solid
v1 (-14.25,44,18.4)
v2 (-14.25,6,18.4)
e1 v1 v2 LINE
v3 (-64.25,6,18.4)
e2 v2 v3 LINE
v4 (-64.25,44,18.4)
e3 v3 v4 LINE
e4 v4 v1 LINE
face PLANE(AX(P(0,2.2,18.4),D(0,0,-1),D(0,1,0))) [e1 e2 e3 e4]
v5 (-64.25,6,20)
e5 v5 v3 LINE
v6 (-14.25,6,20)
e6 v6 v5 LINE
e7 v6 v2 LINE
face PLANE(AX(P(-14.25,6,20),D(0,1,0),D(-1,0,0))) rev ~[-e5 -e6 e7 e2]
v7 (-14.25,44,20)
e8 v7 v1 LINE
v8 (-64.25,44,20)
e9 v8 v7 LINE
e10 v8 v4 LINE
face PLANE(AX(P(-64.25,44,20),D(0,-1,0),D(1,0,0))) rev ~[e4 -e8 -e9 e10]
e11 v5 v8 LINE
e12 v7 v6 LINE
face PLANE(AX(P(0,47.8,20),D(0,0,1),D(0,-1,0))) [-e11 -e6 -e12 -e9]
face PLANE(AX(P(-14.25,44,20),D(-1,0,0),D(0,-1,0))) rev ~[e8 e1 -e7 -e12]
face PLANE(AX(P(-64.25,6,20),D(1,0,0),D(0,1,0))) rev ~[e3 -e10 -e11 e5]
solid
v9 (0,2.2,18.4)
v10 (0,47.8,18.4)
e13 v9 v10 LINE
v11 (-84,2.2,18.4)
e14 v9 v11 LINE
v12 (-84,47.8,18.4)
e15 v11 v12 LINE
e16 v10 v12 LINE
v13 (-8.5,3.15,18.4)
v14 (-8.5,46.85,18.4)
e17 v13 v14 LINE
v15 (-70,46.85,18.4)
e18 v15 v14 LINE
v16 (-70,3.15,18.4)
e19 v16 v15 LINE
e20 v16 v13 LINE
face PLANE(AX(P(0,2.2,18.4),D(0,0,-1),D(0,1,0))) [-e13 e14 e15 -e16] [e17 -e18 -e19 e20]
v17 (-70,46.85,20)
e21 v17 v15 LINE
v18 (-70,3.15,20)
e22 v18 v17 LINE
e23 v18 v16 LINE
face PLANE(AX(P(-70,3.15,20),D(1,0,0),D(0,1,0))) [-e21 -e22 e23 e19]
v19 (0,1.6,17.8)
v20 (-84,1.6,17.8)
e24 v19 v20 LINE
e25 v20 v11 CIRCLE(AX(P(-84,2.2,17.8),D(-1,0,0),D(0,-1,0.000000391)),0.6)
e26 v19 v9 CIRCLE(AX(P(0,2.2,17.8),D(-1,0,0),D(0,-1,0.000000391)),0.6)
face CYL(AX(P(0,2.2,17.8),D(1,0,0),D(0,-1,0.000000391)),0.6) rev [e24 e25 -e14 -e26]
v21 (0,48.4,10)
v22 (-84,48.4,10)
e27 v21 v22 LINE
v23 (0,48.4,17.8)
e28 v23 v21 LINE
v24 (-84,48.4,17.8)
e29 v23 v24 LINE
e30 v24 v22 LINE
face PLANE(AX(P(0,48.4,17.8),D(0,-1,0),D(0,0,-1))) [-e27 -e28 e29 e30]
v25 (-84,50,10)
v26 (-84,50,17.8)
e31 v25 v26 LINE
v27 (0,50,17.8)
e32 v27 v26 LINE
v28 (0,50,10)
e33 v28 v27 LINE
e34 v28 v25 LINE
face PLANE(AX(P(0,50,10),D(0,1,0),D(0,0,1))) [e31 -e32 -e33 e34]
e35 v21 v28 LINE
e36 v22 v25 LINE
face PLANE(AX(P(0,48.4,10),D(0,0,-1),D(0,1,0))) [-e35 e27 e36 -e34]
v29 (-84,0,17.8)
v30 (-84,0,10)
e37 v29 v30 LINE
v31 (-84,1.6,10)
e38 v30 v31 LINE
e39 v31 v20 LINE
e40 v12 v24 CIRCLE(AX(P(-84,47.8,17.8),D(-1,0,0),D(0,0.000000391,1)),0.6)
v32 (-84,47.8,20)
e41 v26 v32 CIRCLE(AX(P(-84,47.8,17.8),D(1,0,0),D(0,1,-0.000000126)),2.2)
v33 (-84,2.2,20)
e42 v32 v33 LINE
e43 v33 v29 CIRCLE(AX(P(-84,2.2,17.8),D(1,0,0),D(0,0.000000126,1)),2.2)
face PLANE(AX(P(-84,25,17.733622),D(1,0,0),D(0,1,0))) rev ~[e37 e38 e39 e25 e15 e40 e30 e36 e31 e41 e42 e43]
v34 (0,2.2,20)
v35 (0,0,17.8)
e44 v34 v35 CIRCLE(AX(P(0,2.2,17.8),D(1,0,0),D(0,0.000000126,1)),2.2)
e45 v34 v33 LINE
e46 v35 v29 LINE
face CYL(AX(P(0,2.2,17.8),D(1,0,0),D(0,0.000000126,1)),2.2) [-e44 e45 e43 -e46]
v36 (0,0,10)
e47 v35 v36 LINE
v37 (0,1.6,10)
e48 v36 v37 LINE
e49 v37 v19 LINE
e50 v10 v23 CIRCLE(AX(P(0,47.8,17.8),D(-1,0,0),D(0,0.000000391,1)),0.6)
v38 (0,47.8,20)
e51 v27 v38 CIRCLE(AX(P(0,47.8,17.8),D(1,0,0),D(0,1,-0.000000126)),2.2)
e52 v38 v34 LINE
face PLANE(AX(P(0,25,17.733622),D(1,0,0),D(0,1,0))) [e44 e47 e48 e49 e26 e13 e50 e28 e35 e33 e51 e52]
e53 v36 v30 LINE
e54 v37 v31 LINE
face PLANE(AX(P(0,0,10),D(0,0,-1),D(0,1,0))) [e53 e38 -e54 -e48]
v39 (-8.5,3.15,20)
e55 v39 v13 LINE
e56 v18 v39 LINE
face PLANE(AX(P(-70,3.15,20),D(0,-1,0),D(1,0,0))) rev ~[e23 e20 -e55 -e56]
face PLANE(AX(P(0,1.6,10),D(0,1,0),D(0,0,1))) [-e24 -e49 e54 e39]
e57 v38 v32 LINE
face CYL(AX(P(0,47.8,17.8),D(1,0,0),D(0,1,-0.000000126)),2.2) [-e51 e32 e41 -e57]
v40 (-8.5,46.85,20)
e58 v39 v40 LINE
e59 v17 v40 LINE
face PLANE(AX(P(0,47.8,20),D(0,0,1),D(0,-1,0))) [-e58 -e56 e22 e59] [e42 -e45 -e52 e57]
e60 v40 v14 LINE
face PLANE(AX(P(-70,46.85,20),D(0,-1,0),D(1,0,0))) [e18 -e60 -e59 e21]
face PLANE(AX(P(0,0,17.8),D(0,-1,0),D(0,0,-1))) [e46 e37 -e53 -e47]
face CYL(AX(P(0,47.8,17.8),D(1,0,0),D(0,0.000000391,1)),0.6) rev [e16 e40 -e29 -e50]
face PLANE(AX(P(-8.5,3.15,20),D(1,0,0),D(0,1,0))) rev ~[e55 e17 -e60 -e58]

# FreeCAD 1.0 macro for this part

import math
import FreeCAD as App
import Part
import Sketcher

V = App.Vector
Q = App.Units.Quantity


def add_polygon(sketch, points):
    """Adds a closed chain of lines whose ends are joined by coincident constraints."""
    first, n = sketch.GeometryCount, len(points)
    for a, b in zip(points, points[1:] + points[:1]):
        sketch.addGeometry(Part.LineSegment(App.Vector(*a, 0), App.Vector(*b, 0)), False)
    for i in range(n):
        sketch.addConstraint(Sketcher.Constraint("Coincident", first + i, 2, first + (i + 1) % n, 1))

doc = App.newDocument("Part")
body = doc.addObject("PartDesign::Body", "Body")
body.AllowCompound = True

# Sketch on YZ plane
sketch1 = doc.addObject("Sketcher::SketchObject", "Sketch")
body.addObject(sketch1)
sketch1.AttachmentSupport = (doc.YZ_Plane, [""])
sketch1.MapMode = "FlatFace"
sketch1.addGeometry([
    Part.LineSegment(V(47.8, 20, 0), V(2.2, 20, 0)),  # 0
    Part.ArcOfCircle(Part.Circle(V(2.2, 17.8, 0), V(0, 0, 1), 2.2), math.radians(90), math.radians(180)),  # 1
    Part.LineSegment(V(0, 17.8, 0), V(0, 10, 0)),  # 2
    Part.LineSegment(V(0, 10, 0), V(1.6, 10, 0)),  # 3
    Part.LineSegment(V(1.6, 10, 0), V(1.6, 17.8, 0)),  # 4
    Part.ArcOfCircle(Part.Circle(V(2.2, 17.8, 0), V(0, 0, 1), 0.6), math.radians(90), math.radians(180)),  # 5
    Part.LineSegment(V(2.2, 18.4, 0), V(47.8, 18.4, 0)),  # 6
    Part.ArcOfCircle(Part.Circle(V(47.8, 17.8, 0), V(0, 0, 1), 0.6), math.radians(0), math.radians(90)),  # 7
    Part.LineSegment(V(48.4, 17.8, 0), V(48.4, 10, 0)),  # 8
    Part.LineSegment(V(48.4, 10, 0), V(50, 10, 0)),  # 9
    Part.LineSegment(V(50, 10, 0), V(50, 17.8, 0)),  # 10
    Part.ArcOfCircle(Part.Circle(V(47.8, 17.8, 0), V(0, 0, 1), 2.2), math.radians(0), math.radians(90)),  # 11
], False)
sketch1.addConstraint([
    Sketcher.Constraint("Tangent", 0, 2, 1, 1),
    Sketcher.Constraint("Tangent", 1, 2, 2, 1),
    Sketcher.Constraint("Coincident", 2, 2, 3, 1),
    Sketcher.Constraint("Coincident", 3, 2, 4, 1),
    Sketcher.Constraint("Tangent", 4, 2, 5, 2),
    Sketcher.Constraint("Tangent", 5, 1, 6, 1),
    Sketcher.Constraint("Tangent", 6, 2, 7, 2),
    Sketcher.Constraint("Tangent", 7, 1, 8, 1),
    Sketcher.Constraint("Coincident", 8, 2, 9, 1),
    Sketcher.Constraint("Coincident", 9, 2, 10, 1),
    Sketcher.Constraint("Tangent", 10, 2, 11, 1),
    Sketcher.Constraint("Tangent", 11, 2, 0, 1),
    Sketcher.Constraint("Horizontal", 0),
    Sketcher.Constraint("Vertical", 2),
    Sketcher.Constraint("Horizontal", 3),
    Sketcher.Constraint("Vertical", 4),
    Sketcher.Constraint("Horizontal", 6),
    Sketcher.Constraint("Vertical", 8),
    Sketcher.Constraint("Horizontal", 9),
    Sketcher.Constraint("Vertical", 10),
    Sketcher.Constraint("Coincident", 5, 3, 1, 3),
    Sketcher.Constraint("Coincident", 11, 3, 7, 3),
    Sketcher.Constraint("Equal", 5, 7),
    Sketcher.Constraint("PointOnObject", 1, 2, -2),
    Sketcher.Constraint("Horizontal", 3, 2, 8, 2),
    Sketcher.Constraint("Radius", 1, Q("2.2 mm")),
    Sketcher.Constraint("Radius", 5, Q("0.6 mm")),
    Sketcher.Constraint("DistanceX", 0, 2, 0, 1, Q("45.6 mm")),
    Sketcher.Constraint("DistanceY", 2, 2, 2, 1, Q("7.8 mm")),
    Sketcher.Constraint("DistanceY", -1, 1, 0, 2, Q("20 mm")),
])
pad1 = doc.addObject("PartDesign::Pad", "Pad")
body.addObject(pad1)
pad1.Profile = sketch1
pad1.Length = 84
pad1.Reversed = True

# Sketch on XY plane
sketch2 = doc.addObject("Sketcher::SketchObject", "Sketch001")
body.addObject(sketch2)
sketch2.AttachmentSupport = (doc.XY_Plane, [""])
sketch2.MapMode = "FlatFace"
sketch2.AttachmentOffset = App.Placement(V(0, 0, 20), App.Rotation())
add_polygon(sketch2, [(-70, 47), (-70, 3), (-8, 3), (-8, 47)])  # lines 0-3
add_polygon(sketch2, [(-14, 6), (-64, 6), (-64, 44), (-14, 44)])  # lines 4-7
sketch2.addConstraint([
    Sketcher.Constraint("Vertical", 0),
    Sketcher.Constraint("Horizontal", 1),
    Sketcher.Constraint("Vertical", 2),
    Sketcher.Constraint("Horizontal", 3),
    Sketcher.Constraint("Horizontal", 4),
    Sketcher.Constraint("Vertical", 5),
    Sketcher.Constraint("Horizontal", 6),
    Sketcher.Constraint("Vertical", 7),
    Sketcher.Constraint("DistanceX", 4, 2, 4, 1, Q("50 mm")),
    Sketcher.Constraint("DistanceY", 5, 1, 5, 2, Q("38 mm")),
    Sketcher.Constraint("DistanceX", 1, 1, 1, 2, Q("61.5 mm")),
    Sketcher.Constraint("DistanceY", 0, 2, 0, 1, Q("43.7 mm")),
    Sketcher.Constraint("DistanceX", 0, 2, -1, 1, Q("70 mm")),
    Sketcher.Constraint("DistanceY", -1, 1, 4, 2, Q("6 mm")),
    Sketcher.Constraint("DistanceY", -1, 1, 0, 2, Q("3.15 mm")),
    Sketcher.Constraint("DistanceX", 4, 2, -1, 1, Q("64.25 mm")),
])
pocket1 = doc.addObject("PartDesign::Pocket", "Pocket")
body.addObject(pocket1)
pocket1.Profile = sketch2
pocket1.Type = "ThroughAll"

doc.recompute()
